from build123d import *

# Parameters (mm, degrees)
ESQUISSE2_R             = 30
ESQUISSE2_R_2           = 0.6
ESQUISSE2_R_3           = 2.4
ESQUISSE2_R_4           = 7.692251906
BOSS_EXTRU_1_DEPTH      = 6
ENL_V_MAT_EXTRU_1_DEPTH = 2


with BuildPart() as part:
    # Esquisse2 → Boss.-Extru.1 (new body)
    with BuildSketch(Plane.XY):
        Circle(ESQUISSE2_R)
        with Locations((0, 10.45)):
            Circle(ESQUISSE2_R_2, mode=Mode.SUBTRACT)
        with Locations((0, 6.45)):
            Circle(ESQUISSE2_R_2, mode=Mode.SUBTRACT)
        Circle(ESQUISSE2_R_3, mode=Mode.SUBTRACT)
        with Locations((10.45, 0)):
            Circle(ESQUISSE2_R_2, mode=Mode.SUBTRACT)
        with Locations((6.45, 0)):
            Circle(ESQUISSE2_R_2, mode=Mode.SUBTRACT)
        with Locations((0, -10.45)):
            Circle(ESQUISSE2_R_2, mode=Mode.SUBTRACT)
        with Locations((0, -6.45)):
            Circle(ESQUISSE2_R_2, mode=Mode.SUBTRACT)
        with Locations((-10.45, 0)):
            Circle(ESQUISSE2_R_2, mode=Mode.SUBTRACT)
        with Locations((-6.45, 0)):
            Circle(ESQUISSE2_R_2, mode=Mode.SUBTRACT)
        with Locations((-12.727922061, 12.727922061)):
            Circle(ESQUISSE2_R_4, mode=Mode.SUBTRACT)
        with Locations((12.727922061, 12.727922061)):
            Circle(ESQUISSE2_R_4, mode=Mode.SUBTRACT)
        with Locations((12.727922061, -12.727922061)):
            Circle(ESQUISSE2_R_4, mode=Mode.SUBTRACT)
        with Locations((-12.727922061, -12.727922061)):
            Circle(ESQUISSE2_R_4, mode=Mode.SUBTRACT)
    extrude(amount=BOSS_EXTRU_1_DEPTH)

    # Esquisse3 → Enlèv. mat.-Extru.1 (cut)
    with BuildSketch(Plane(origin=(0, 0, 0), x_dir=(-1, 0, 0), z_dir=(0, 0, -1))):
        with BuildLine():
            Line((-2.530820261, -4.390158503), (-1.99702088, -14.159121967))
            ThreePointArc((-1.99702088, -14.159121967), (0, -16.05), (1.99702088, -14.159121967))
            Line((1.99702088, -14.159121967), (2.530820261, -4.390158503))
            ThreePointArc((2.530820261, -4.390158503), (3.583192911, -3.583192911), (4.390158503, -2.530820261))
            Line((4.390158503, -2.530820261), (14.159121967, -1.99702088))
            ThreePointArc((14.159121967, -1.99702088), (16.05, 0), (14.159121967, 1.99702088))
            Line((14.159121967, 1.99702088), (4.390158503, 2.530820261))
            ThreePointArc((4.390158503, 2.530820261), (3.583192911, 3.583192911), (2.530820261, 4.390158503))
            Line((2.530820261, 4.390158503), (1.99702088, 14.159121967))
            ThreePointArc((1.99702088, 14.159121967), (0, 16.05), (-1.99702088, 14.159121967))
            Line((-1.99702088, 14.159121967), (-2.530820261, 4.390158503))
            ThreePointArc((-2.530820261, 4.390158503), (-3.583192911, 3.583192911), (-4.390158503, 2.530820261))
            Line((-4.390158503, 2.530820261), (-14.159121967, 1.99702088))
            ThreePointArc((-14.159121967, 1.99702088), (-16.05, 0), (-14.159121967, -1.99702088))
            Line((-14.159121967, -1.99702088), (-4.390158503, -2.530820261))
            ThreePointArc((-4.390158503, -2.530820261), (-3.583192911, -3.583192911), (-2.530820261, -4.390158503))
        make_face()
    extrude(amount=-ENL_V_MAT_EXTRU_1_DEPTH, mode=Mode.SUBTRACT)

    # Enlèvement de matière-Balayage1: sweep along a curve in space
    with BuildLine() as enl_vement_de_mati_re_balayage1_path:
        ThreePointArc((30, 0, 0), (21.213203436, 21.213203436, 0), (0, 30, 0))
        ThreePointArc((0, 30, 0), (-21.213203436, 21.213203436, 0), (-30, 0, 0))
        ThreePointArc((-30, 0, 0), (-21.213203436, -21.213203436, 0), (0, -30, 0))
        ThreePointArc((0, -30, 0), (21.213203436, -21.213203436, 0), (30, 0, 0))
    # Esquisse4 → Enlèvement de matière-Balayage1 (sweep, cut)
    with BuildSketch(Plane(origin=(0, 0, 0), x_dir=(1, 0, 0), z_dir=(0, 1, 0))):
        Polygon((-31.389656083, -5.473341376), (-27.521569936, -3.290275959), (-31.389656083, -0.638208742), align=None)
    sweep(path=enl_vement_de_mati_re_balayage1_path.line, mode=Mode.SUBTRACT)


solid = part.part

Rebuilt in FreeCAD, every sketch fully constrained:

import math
import FreeCAD as App
import Part
import Sketcher

doc = App.newDocument("Part")
params = doc.addObject("Spreadsheet::Sheet", "Params")
for row, (alias, value) in enumerate([
    ("sketch1_diameter", "60 mm"),
    ("sketch1_diameter2", "1.2 mm"),
    ("sketch1_diameter3", "4.8 mm"),
    ("pad1_length", "6 mm"),
    ("sketch2_radius", "2 mm"),
    ("pocket1_length", "2 mm"),
    ("sketch4_radius", "30 mm"),
], start=1):
    params.set(f"A{row}", alias)
    params.set(f"B{row}", "=" + value)
    params.setAlias(f"B{row}", alias)

body = doc.addObject("PartDesign::Body", "Body")

# Sketch on XY plane
sketch1 = body.newObject("Sketcher::SketchObject", "Sketch")
sketch1.AttachmentSupport = (doc.getObject("XY_Plane"), [""])
sketch1.MapMode = "FlatFace"
sketch1.addGeometry([
    Part.Circle(App.Vector(0, 0, 0), App.Vector(0, 0, 1), 30),  # 0
    Part.Circle(App.Vector(-12.727922, -12.727922, 0), App.Vector(0, 0, 1), 7.692252),  # 1
    Part.Circle(App.Vector(0, -10.45, 0), App.Vector(0, 0, 1), 0.6),  # 2
    Part.Circle(App.Vector(0, -6.45, 0), App.Vector(0, 0, 1), 0.6),  # 3
    Part.Circle(App.Vector(12.727922, -12.727922, 0), App.Vector(0, 0, 1), 7.692252),  # 4
    Part.Circle(App.Vector(-10.45, 0, 0), App.Vector(0, 0, 1), 0.6),  # 5
    Part.Circle(App.Vector(-6.45, 0, 0), App.Vector(0, 0, 1), 0.6),  # 6
    Part.Circle(App.Vector(0, 0, 0), App.Vector(0, 0, 1), 2.4),  # 7
    Part.Circle(App.Vector(0, 6.45, 0), App.Vector(0, 0, 1), 0.6),  # 8
    Part.Circle(App.Vector(-12.727922, 12.727922, 0), App.Vector(0, 0, 1), 7.692252),  # 9
    Part.Circle(App.Vector(0, 10.45, 0), App.Vector(0, 0, 1), 0.6),  # 10
    Part.Circle(App.Vector(6.45, 0, 0), App.Vector(0, 0, 1), 0.6),  # 11
    Part.Circle(App.Vector(10.45, 0, 0), App.Vector(0, 0, 1), 0.6),  # 12
    Part.Circle(App.Vector(12.727922, 12.727922, 0), App.Vector(0, 0, 1), 7.692252),  # 13
], False)
sketch1.addConstraint([
    Sketcher.Constraint("Coincident", 0, 3, -1, 1),
    Sketcher.Constraint("Coincident", 7, 3, -1, 1),
    Sketcher.Constraint("Equal", 2, 3),
    Sketcher.Constraint("Equal", 1, 4),
    Sketcher.Constraint("Equal", 3, 5),
    Sketcher.Constraint("Equal", 5, 6),
    Sketcher.Constraint("Equal", 6, 8),
    Sketcher.Constraint("Equal", 4, 9),
    Sketcher.Constraint("Equal", 8, 10),
    Sketcher.Constraint("Equal", 10, 11),
    Sketcher.Constraint("Equal", 11, 12),
    Sketcher.Constraint("Equal", 9, 13),
    Sketcher.Constraint("Symmetric", 3, 3, 8, 3, -1, 1),
    Sketcher.Constraint("Symmetric", 4, 3, 9, 3, -1, 1),
    Sketcher.Constraint("Symmetric", 2, 3, 10, 3, -1, 1),
    Sketcher.Constraint("Symmetric", 6, 3, 11, 3, -1, 1),
    Sketcher.Constraint("Symmetric", 5, 3, 12, 3, -1, 1),
    Sketcher.Constraint("Symmetric", 1, 3, 13, 3, -1, 1),
    Sketcher.Constraint("Symmetric", 1, 3, 4, 3, -2),
    Sketcher.Constraint("PointOnObject", 2, 3, -2),
    Sketcher.Constraint("PointOnObject", 3, 3, -2),
    Sketcher.Constraint("PointOnObject", 5, 3, -1),
    Sketcher.Constraint("PointOnObject", 6, 3, -1),
    Sketcher.Constraint("Diameter", 0, 60.0),
    Sketcher.Constraint("Diameter", 2, 1.2),
    Sketcher.Constraint("Diameter", 7, 4.8),
    Sketcher.Constraint("DistanceY", 2, 3, 3, 3, 4.0),
    Sketcher.Constraint("DistanceX", 5, 3, 6, 3, 4.0),
    Sketcher.Constraint("DistanceY", 3, 3, 8, 3, 12.9),
    Sketcher.Constraint("DistanceX", 5, 3, -1, 1, 10.45),
    Sketcher.Constraint("Diameter", 1, 15.384504),
    Sketcher.Constraint("DistanceX", 1, 3, -1, 1, 12.727922),
    Sketcher.Constraint("DistanceY", 1, 3, -1, 1, 12.727922),
])
sketch1.setExpression("Constraints[23]", "Params.sketch1_diameter")
sketch1.setExpression("Constraints[24]", "Params.sketch1_diameter2")
sketch1.setExpression("Constraints[25]", "Params.sketch1_diameter3")
pad1 = body.newObject("PartDesign::Pad", "Pad")
pad1.Profile = sketch1
pad1.setExpression("Length", "Params.pad1_length")

# Sketch on XY plane
sketch2 = body.newObject("Sketcher::SketchObject", "Sketch001")
sketch2.AttachmentSupport = (doc.getObject("XY_Plane"), [""])
sketch2.MapMode = "FlatFace"
sketch2.addGeometry([
    Part.LineSegment(App.Vector(2.53082, -4.390159, 0), App.Vector(1.997021, -14.159122, 0)),  # 0
    Part.ArcOfCircle(Part.Circle(App.Vector(0, -14.05, 0), App.Vector(0, 0, 1), 2), math.radians(-176.872333), math.radians(-3.127667)),  # 1
    Part.LineSegment(App.Vector(-1.997021, -14.159122, 0), App.Vector(-2.53082, -4.390159, 0)),  # 2
    Part.ArcOfCircle(Part.Circle(App.Vector(0, 0, 0), App.Vector(0, 0, 1), 5.0674), math.radians(-150.037591), math.radians(-119.962409)),  # 3
    Part.LineSegment(App.Vector(-4.390159, -2.53082, 0), App.Vector(-14.159122, -1.997021, 0)),  # 4
    Part.ArcOfCircle(Part.Circle(App.Vector(-14.05, 0, 0), App.Vector(0, 0, 1), 2), math.radians(93.127667), math.radians(266.872333)),  # 5
    Part.LineSegment(App.Vector(-14.159122, 1.997021, 0), App.Vector(-4.390159, 2.53082, 0)),  # 6
    Part.ArcOfCircle(Part.Circle(App.Vector(0, 0, 0), App.Vector(0, 0, 1), 5.0674), math.radians(119.962409), math.radians(150.037591)),  # 7
    Part.LineSegment(App.Vector(-2.53082, 4.390159, 0), App.Vector(-1.997021, 14.159122, 0)),  # 8
    Part.ArcOfCircle(Part.Circle(App.Vector(0, 14.05, 0), App.Vector(0, 0, 1), 2), math.radians(3.127667), math.radians(176.872333)),  # 9
    Part.LineSegment(App.Vector(1.997021, 14.159122, 0), App.Vector(2.53082, 4.390159, 0)),  # 10
    Part.ArcOfCircle(Part.Circle(App.Vector(0, 0, 0), App.Vector(0, 0, 1), 5.0674), math.radians(29.962409), math.radians(60.037591)),  # 11
    Part.LineSegment(App.Vector(4.390159, 2.53082, 0), App.Vector(14.159122, 1.997021, 0)),  # 12
    Part.ArcOfCircle(Part.Circle(App.Vector(14.05, 0, 0), App.Vector(0, 0, 1), 2), math.radians(-86.872333), math.radians(86.872333)),  # 13
    Part.LineSegment(App.Vector(14.159122, -1.997021, 0), App.Vector(4.390159, -2.53082, 0)),  # 14
    Part.ArcOfCircle(Part.Circle(App.Vector(0, 0, 0), App.Vector(0, 0, 1), 5.0674), math.radians(-60.037591), math.radians(-29.962409)),  # 15
], False)
sketch2.addConstraint([
    Sketcher.Constraint("Tangent", 0, 2, 1, 2),
    Sketcher.Constraint("Tangent", 1, 1, 2, 1),
    Sketcher.Constraint("Coincident", 2, 2, 3, 2),
    Sketcher.Constraint("Coincident", 3, 1, 4, 1),
    Sketcher.Constraint("Tangent", 4, 2, 5, 2),
    Sketcher.Constraint("Tangent", 5, 1, 6, 1),
    Sketcher.Constraint("Coincident", 6, 2, 7, 2),
    Sketcher.Constraint("Coincident", 7, 1, 8, 1),
    Sketcher.Constraint("Tangent", 8, 2, 9, 2),
    Sketcher.Constraint("Tangent", 9, 1, 10, 1),
    Sketcher.Constraint("Coincident", 10, 2, 11, 2),
    Sketcher.Constraint("Coincident", 11, 1, 12, 1),
    Sketcher.Constraint("Tangent", 12, 2, 13, 2),
    Sketcher.Constraint("Tangent", 13, 1, 14, 1),
    Sketcher.Constraint("Coincident", 14, 2, 15, 2),
    Sketcher.Constraint("Coincident", 15, 1, 0, 1),
    Sketcher.Constraint("Coincident", 3, 3, -1, 1),
    Sketcher.Constraint("Coincident", 7, 3, -1, 1),
    Sketcher.Constraint("Coincident", 11, 3, -1, 1),
    Sketcher.Constraint("Coincident", 15, 3, -1, 1),
    Sketcher.Constraint("Equal", 1, 5),
    Sketcher.Constraint("Equal", 3, 7),
    Sketcher.Constraint("Equal", 5, 9),
    Sketcher.Constraint("Equal", 7, 11),
    Sketcher.Constraint("Equal", 9, 13),
    Sketcher.Constraint("Equal", 11, 15),
    Sketcher.Constraint("Symmetric", 1, 3, 9, 3, -1, 1),
    Sketcher.Constraint("Symmetric", 5, 3, 13, 3, -1, 1),
    Sketcher.Constraint("Symmetric", 0, 2, 1, 1, -2),
    Sketcher.Constraint("Symmetric", 5, 1, 12, 2, -2),
    Sketcher.Constraint("Perpendicular", 0, 4),
    Sketcher.Constraint("Perpendicular", 2, 6),
    Sketcher.Constraint("Perpendicular", 4, 8),
    Sketcher.Constraint("Perpendicular", 6, 10),
    Sketcher.Constraint("Perpendicular", 10, 14),
    Sketcher.Constraint("Equal", 2, 4),
    Sketcher.Constraint("Radius", 1, 2.0),
    Sketcher.Constraint("Radius", 3, 5.0674),
    Sketcher.Constraint("DistanceY", 1, 3, 9, 3, 28.1),
    Sketcher.Constraint("DistanceX", 2, 2, 1, 1, 0.533799),
])
sketch2.setExpression("Constraints[36]", "Params.sketch2_radius")
pocket1 = body.newObject("PartDesign::Pocket", "Pocket")
pocket1.Profile = sketch2
pocket1.setExpression("Length", "Params.pocket1_length")
pocket1.Reversed = True

# Sketch on XZ plane
sketch3 = body.newObject("Sketcher::SketchObject", "Sketch002")
sketch3.AttachmentSupport = (doc.getObject("XZ_Plane"), [""])
sketch3.MapMode = "FlatFace"
sketch3.addGeometry([
    Part.LineSegment(App.Vector(-31.389656, 5.473341, 0), App.Vector(-27.52157, 3.290276, 0)),
    Part.LineSegment(App.Vector(-27.52157, 3.290276, 0), App.Vector(-31.389656, 0.638209, 0)),
    Part.LineSegment(App.Vector(-31.389656, 0.638209, 0), App.Vector(-31.389656, 5.473341, 0)),
], False)
sketch3.addConstraint([
    Sketcher.Constraint("Coincident", 0, 2, 1, 1),
    Sketcher.Constraint("Coincident", 1, 2, 2, 1),
    Sketcher.Constraint("Coincident", 2, 2, 0, 1),
    Sketcher.Constraint("Vertical", 2),
    Sketcher.Constraint("Distance", 1, 4.689941),
    Sketcher.Constraint("DistanceY", 2, 1, 2, 2, 4.835133),
    Sketcher.Constraint("DistanceX", 0, 2, -1, 1, 27.52157),
    Sketcher.Constraint("DistanceY", -1, 1, 1, 2, 0.638209),
    Sketcher.Constraint("Distance", 0, 4.441606),
])

# Sketch on XY plane
sketch4 = body.newObject("Sketcher::SketchObject", "Sketch003")
sketch4.AttachmentSupport = (doc.getObject("XY_Plane"), [""])
sketch4.MapMode = "FlatFace"
sketch4.addGeometry([
    Part.ArcOfCircle(Part.Circle(App.Vector(0, 0, 0), App.Vector(0, 0, 1), 30), math.radians(0), math.radians(90)),
    Part.ArcOfCircle(Part.Circle(App.Vector(0, 0, 0), App.Vector(0, 0, 1), 30), math.radians(90), math.radians(180)),
    Part.ArcOfCircle(Part.Circle(App.Vector(0, 0, 0), App.Vector(0, 0, 1), 30), math.radians(180), math.radians(270)),
    Part.ArcOfCircle(Part.Circle(App.Vector(0, 0, 0), App.Vector(0, 0, 1), 30), math.radians(-90), math.radians(0)),
], False)
sketch4.addConstraint([
    Sketcher.Constraint("Tangent", 0, 2, 1, 1),
    Sketcher.Constraint("Tangent", 1, 2, 2, 1),
    Sketcher.Constraint("Tangent", 2, 2, 3, 1),
    Sketcher.Constraint("Tangent", 3, 2, 0, 1),
    Sketcher.Constraint("Coincident", 0, 3, -1, 1),
    Sketcher.Constraint("Equal", 0, 1),
    Sketcher.Constraint("PointOnObject", 0, 2, -2),
    Sketcher.Constraint("PointOnObject", 1, 2, -1),
    Sketcher.Constraint("PointOnObject", 2, 2, -2),
    Sketcher.Constraint("PointOnObject", 3, 2, -1),
    Sketcher.Constraint("Radius", 0, 30.0),
])
sketch4.setExpression("Constraints[10]", "Params.sketch4_radius")
doc.recompute()

subtractivepipe = body.newObject("PartDesign::SubtractivePipe", "SubtractivePipe")
subtractivepipe.Profile = sketch3
subtractivepipe.Spine = (sketch4, ["Edge1", "Edge2", "Edge3", "Edge4"])

doc.recompute()
